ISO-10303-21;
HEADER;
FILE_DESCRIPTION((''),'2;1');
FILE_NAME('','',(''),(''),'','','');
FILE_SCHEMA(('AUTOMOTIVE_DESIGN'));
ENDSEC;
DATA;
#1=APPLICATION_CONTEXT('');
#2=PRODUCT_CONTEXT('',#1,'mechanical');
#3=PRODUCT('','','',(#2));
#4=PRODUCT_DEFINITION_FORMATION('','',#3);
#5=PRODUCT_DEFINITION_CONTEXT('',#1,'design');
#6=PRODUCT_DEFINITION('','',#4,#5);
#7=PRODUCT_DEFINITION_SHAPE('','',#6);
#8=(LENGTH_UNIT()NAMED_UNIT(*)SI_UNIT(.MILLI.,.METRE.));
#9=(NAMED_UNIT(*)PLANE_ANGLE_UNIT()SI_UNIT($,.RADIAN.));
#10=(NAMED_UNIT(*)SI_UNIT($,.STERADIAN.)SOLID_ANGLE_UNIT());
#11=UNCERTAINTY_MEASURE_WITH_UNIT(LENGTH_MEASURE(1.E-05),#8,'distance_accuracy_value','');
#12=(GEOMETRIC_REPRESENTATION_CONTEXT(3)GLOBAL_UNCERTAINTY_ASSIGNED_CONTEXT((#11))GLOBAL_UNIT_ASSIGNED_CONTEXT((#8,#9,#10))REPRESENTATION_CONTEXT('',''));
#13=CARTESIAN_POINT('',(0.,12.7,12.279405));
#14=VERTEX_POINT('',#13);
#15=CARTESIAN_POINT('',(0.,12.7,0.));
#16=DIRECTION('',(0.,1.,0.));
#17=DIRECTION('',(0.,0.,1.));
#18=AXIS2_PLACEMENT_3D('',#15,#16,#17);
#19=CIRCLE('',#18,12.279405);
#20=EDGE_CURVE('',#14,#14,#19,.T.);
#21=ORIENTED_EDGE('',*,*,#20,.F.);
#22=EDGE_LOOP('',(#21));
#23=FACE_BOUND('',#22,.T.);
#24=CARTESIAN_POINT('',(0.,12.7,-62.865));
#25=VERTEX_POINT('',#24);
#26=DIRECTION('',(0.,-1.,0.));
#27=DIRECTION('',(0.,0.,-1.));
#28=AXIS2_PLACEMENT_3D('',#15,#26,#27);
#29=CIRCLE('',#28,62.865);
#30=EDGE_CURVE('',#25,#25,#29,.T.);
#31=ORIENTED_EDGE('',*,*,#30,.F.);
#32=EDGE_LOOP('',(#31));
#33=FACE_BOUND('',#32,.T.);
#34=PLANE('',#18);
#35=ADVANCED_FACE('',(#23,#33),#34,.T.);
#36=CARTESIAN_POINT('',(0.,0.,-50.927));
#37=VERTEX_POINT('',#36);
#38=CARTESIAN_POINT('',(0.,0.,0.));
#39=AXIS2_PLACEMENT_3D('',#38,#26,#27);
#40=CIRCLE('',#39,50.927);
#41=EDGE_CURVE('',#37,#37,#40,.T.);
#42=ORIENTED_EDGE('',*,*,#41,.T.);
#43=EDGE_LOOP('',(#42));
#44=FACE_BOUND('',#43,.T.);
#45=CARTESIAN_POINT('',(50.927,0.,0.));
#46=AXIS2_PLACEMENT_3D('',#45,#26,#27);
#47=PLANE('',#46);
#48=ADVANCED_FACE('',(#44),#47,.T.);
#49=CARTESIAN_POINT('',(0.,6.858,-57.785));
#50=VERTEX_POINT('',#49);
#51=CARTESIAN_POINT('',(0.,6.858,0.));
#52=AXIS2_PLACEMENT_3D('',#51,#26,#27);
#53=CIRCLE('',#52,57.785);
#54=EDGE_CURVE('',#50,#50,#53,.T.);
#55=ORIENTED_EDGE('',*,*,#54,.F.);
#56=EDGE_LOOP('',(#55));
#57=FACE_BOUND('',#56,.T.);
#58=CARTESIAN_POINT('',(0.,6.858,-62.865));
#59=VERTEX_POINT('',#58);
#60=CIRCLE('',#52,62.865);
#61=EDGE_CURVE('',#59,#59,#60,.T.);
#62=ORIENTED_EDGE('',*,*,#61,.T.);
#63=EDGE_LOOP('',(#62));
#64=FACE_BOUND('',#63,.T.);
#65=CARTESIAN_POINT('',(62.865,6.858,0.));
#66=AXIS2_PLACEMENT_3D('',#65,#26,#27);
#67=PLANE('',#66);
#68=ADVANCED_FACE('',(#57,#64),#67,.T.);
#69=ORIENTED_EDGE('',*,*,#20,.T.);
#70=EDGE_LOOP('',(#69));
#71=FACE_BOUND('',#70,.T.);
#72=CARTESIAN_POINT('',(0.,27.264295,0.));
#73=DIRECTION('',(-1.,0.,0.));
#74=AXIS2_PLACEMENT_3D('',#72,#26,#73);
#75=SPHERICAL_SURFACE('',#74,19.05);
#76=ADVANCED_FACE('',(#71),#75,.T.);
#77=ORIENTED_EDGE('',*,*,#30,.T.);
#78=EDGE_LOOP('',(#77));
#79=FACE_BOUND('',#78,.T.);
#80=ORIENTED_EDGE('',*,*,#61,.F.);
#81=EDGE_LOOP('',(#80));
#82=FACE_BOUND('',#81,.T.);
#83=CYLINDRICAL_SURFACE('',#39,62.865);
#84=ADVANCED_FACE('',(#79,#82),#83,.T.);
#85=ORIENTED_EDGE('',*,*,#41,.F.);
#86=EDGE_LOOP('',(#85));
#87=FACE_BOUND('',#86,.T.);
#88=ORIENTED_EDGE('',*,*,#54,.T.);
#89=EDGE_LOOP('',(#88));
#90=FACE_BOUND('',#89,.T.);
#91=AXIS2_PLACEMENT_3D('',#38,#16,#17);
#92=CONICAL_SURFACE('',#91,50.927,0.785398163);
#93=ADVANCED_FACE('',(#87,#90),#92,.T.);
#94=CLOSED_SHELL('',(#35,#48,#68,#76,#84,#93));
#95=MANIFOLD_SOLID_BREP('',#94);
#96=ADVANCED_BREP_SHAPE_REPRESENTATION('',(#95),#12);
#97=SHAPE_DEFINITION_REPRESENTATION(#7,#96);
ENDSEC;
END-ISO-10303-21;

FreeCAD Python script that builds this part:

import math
import FreeCAD as App
import Part
import Sketcher
Q = App.Units.Quantity

doc = App.newDocument("Part")
body = doc.addObject("PartDesign::Body", "Body")

sketch1 = body.newObject("Sketcher::SketchObject", "Sketch")
sketch1.AttachmentSupport = (doc.getObject("XY_Plane"), [""])
sketch1.MapMode = "FlatFace"
sketch1.addGeometry([
    Part.LineSegment(App.Vector(62.865, 6.858, 0), App.Vector(62.865, 12.7, 0)),
    Part.LineSegment(App.Vector(62.865, 12.7, 0), App.Vector(0, 12.7, 0)),
    Part.LineSegment(App.Vector(0, 12.7, 0), App.Vector(0, 0, 0)),
    Part.LineSegment(App.Vector(0, 0, 0), App.Vector(50.927, 0, 0)),
    Part.LineSegment(App.Vector(50.927, 0, 0), App.Vector(57.785, 6.858, 0)),
    Part.LineSegment(App.Vector(57.785, 6.858, 0), App.Vector(62.865, 6.858, 0)),
], False)
sketch1.addConstraint([
    Sketcher.Constraint("Coincident", 0, 2, 1, 1),
    Sketcher.Constraint("Coincident", 1, 2, 2, 1),
    Sketcher.Constraint("Coincident", 2, 2, 3, 1),
    Sketcher.Constraint("Coincident", 3, 2, 4, 1),
    Sketcher.Constraint("Coincident", 4, 2, 5, 1),
    Sketcher.Constraint("Coincident", 5, 2, 0, 1),
    Sketcher.Constraint("Vertical", 0),
    Sketcher.Constraint("Horizontal", 1),
    Sketcher.Constraint("Vertical", 2),
    Sketcher.Constraint("Horizontal", 3),
    Sketcher.Constraint("Horizontal", 5),
    Sketcher.Constraint("Coincident", 2, 2, -1, 1),
    Sketcher.Constraint("DistanceX", 5, 1, 5, 2, Q("0.2 in")),
    Sketcher.Constraint("DistanceY", 2, 2, 2, 1, Q("0.5 in")),
    Sketcher.Constraint("Angle", 4, Q("45 deg")),
    Sketcher.Constraint("DistanceY", 0, 1, 0, 2, Q("0.23 in")),
    Sketcher.Constraint("DistanceX", 1, 2, 1, 1, Q("2.475 in")),
])
revolution = body.newObject("PartDesign::Revolution", "Revolution")
revolution.Profile = sketch1
revolution.ReferenceAxis = (sketch1, ["V_Axis"])
revolution.Angle = 360

sketch2 = body.newObject("Sketcher::SketchObject", "Sketch001")
sketch2.AttachmentSupport = (doc.getObject("XY_Plane"), [""])
sketch2.MapMode = "FlatFace"
sketch2.addGeometry([
    Part.LineSegment(App.Vector(0, 46.314295, 0), App.Vector(0, 8.214295, 0)),
    Part.ArcOfCircle(Part.Circle(App.Vector(0, 27.264295, 0), App.Vector(0, 0, 1), 19.05), math.radians(-90), math.radians(90)),
], False)
sketch2.addConstraint([
    Sketcher.Constraint("Coincident", 0, 1, 1, 2),
    Sketcher.Constraint("Coincident", 1, 1, 0, 2),
    Sketcher.Constraint("Vertical", 0),
    Sketcher.Constraint("PointOnObject", 1, 3, -2),
    Sketcher.Constraint("PointOnObject", 0, 1, -2),
    Sketcher.Constraint("Radius", 1, Q("0.75 in")),
    Sketcher.Constraint("DistanceY", -1, 1, 1, 3, Q("27.264295 mm")),
])
revolution2 = body.newObject("PartDesign::Revolution", "Revolution001")
revolution2.Profile = sketch2
revolution2.ReferenceAxis = (sketch2, ["V_Axis"])
revolution2.Angle = 360

doc.recompute()
